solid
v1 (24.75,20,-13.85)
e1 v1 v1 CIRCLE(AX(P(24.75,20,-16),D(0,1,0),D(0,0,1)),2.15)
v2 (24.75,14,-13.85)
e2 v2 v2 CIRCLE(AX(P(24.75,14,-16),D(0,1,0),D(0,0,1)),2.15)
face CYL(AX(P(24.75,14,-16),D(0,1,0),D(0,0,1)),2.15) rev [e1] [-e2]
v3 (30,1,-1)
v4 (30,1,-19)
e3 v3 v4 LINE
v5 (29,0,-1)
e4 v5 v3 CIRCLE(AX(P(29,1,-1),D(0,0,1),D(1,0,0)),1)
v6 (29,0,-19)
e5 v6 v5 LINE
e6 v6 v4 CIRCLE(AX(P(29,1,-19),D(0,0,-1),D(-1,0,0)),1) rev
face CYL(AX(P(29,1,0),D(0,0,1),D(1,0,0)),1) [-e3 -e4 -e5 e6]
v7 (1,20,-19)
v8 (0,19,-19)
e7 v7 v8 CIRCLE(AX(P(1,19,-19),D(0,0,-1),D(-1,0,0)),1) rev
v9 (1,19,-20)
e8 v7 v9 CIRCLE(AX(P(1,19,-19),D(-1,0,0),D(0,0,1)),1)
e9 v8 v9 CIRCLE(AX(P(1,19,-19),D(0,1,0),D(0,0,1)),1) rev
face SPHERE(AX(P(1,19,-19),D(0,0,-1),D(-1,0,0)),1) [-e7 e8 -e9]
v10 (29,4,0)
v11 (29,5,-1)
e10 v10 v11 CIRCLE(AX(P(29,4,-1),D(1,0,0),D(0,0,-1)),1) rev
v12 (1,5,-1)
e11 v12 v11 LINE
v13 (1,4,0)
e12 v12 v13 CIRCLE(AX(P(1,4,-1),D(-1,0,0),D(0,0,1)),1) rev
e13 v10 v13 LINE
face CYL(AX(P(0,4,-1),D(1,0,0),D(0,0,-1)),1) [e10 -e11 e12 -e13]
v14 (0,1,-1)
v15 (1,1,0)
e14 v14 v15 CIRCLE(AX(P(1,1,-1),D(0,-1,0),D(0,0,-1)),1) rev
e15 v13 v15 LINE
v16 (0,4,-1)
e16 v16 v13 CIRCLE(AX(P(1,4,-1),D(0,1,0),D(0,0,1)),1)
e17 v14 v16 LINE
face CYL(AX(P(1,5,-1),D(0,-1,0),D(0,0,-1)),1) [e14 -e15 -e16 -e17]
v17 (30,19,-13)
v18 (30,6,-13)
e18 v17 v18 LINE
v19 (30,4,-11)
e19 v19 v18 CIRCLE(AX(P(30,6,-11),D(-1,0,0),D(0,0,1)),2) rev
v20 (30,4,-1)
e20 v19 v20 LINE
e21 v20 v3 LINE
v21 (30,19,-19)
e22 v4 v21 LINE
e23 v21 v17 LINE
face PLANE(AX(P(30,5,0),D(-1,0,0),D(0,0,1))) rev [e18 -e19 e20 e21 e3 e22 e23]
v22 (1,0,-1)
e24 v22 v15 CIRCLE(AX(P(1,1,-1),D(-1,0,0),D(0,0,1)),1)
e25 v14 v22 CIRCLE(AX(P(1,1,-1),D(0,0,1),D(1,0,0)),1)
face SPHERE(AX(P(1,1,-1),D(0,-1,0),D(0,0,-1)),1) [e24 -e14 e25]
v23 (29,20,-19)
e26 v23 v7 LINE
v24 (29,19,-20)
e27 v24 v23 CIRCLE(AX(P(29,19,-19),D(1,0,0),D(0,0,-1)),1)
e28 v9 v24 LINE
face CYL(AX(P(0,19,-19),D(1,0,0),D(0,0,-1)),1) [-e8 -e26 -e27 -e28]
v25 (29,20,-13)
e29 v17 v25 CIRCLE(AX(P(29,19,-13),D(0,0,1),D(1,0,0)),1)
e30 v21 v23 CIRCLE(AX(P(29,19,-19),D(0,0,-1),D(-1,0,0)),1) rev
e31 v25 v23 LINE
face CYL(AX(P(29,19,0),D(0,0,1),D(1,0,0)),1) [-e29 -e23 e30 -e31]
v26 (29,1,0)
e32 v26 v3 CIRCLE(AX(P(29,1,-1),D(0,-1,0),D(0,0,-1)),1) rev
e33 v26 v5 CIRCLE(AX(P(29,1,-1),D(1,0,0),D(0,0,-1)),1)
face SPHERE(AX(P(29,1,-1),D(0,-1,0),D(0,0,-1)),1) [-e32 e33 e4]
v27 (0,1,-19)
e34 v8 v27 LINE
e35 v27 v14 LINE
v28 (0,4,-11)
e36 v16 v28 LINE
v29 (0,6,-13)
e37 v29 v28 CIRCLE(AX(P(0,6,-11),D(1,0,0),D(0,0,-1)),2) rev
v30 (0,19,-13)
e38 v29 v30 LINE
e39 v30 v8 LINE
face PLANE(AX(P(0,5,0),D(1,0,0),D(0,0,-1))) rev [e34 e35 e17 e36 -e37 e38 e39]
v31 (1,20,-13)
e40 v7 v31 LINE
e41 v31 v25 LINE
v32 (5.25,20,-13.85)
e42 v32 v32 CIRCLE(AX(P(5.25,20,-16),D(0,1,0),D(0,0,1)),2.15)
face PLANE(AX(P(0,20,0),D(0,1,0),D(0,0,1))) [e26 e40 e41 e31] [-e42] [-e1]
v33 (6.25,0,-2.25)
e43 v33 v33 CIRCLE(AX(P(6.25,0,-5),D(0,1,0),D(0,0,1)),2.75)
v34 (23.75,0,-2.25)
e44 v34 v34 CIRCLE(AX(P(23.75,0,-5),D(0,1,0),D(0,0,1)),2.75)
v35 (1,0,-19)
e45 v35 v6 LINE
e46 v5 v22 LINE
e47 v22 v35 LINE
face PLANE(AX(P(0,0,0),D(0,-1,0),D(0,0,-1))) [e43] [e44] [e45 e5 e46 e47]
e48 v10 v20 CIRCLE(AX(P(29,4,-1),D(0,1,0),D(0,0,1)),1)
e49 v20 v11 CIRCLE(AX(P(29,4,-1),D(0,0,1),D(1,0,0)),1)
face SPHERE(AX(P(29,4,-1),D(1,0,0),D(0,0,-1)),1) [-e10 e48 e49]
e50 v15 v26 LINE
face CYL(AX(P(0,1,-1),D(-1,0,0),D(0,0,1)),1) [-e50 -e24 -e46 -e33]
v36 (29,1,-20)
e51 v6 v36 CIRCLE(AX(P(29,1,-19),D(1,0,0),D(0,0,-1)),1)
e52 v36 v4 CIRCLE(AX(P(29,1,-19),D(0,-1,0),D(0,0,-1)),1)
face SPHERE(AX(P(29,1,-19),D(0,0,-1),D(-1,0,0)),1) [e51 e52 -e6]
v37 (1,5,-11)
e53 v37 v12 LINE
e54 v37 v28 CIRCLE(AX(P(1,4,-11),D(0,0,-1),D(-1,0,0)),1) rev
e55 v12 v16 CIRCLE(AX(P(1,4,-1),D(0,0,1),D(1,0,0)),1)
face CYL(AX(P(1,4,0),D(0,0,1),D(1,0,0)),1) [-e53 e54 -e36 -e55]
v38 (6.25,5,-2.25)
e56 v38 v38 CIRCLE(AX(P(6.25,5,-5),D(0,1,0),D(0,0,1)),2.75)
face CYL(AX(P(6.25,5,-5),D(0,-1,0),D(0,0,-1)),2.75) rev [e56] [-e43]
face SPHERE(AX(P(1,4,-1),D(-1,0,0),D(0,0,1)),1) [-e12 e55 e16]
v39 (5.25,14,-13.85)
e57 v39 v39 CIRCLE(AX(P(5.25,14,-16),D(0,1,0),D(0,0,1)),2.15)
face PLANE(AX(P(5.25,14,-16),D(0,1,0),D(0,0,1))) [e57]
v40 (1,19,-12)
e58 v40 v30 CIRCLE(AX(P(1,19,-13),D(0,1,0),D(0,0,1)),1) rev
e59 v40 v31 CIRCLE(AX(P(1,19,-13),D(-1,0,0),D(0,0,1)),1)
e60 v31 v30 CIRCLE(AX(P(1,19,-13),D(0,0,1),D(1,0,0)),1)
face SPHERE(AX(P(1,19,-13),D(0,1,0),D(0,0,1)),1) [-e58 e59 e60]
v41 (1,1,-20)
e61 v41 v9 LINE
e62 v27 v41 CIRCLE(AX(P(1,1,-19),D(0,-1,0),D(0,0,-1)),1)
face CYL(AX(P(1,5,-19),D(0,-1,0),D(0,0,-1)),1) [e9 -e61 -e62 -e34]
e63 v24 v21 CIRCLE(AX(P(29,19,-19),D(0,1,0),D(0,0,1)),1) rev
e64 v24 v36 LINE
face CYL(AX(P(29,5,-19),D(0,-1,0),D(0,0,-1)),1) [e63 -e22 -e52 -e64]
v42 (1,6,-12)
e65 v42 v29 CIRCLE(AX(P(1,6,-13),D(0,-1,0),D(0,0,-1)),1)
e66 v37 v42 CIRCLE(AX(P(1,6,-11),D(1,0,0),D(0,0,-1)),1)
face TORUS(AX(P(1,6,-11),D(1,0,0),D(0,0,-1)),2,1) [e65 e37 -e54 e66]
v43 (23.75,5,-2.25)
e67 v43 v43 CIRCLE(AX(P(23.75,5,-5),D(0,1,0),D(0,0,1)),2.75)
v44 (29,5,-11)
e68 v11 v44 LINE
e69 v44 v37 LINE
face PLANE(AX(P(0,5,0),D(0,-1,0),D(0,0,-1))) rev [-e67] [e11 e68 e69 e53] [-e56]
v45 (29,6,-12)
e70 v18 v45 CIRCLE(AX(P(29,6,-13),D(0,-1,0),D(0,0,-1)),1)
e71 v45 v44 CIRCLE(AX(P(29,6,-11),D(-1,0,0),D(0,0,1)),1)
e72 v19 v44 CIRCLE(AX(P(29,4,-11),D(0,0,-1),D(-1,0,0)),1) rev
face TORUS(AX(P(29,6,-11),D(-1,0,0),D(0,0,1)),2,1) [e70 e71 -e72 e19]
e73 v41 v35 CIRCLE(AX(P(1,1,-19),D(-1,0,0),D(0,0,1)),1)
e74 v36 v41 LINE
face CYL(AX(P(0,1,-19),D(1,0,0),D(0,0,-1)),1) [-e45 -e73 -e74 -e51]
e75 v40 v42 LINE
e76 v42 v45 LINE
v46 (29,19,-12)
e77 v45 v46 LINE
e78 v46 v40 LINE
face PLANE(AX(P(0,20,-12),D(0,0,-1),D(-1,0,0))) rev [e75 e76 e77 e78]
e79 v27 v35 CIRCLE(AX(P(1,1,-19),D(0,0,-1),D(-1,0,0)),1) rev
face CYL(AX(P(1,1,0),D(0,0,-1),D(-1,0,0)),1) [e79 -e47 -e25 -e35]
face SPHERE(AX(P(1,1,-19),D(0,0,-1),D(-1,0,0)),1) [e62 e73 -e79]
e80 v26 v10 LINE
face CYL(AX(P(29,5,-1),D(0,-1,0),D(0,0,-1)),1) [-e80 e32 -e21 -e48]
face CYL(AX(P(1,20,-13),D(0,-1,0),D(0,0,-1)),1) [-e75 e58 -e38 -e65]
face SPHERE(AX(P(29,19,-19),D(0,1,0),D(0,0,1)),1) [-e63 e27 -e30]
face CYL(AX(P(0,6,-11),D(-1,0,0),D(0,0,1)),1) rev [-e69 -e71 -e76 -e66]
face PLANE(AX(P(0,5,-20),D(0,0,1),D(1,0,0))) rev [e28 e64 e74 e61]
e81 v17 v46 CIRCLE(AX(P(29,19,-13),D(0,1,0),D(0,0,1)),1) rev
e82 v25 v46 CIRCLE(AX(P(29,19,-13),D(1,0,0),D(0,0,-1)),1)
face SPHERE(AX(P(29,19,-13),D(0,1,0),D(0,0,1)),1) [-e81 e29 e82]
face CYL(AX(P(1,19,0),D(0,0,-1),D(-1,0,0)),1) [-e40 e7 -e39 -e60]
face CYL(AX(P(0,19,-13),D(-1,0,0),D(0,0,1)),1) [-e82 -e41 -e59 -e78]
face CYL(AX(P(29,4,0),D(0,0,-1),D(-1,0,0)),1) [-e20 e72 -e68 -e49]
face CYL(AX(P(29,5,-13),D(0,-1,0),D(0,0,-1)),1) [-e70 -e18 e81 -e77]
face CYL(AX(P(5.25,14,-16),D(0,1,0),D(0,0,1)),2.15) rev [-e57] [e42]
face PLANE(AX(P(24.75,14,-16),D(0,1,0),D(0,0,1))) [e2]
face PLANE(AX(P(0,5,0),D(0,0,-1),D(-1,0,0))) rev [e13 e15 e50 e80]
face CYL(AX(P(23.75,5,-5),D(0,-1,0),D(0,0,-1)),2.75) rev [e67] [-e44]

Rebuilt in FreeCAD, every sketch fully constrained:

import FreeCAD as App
import Part
import Sketcher

V = App.Vector


def edges_at(feature, points):
    """Names of the edges that pass closest to the given points."""
    edges = feature.Shape.Edges
    near = lambda p: min(range(len(edges)), key=lambda i: edges[i].distToShape(Part.Vertex(*p))[0])
    return sorted({f"Edge{near(p) + 1}" for p in points})


def add_polygon(sketch, points):
    """Adds a closed chain of lines whose ends are joined by coincident constraints."""
    first, n = sketch.GeometryCount, len(points)
    for a, b in zip(points, points[1:] + points[:1]):
        sketch.addGeometry(Part.LineSegment(App.Vector(*a, 0), App.Vector(*b, 0)), False)
    for i in range(n):
        sketch.addConstraint(Sketcher.Constraint("Coincident", first + i, 2, first + (i + 1) % n, 1))

doc = App.newDocument("Part")
body = doc.addObject("PartDesign::Body", "Body")

# Sketch on XZ plane
sketch1 = body.newObject("Sketcher::SketchObject", "Sketch")
sketch1.AttachmentSupport = (doc.getObject("XZ_Plane"), [""])
sketch1.MapMode = "FlatFace"
add_polygon(sketch1, [(0, -20), (0, 0), (30, 0), (30, -20)])  # lines 0-3
sketch1.addGeometry(Part.Circle(V(6.2, -5, 0), V(0, 0, 1), 2.8), False)  # 4
sketch1.addGeometry(Part.Circle(V(23.8, -5, 0), V(0, 0, 1), 2.8), False)  # 5
sketch1.addConstraint([
    Sketcher.Constraint("Vertical", 0),
    Sketcher.Constraint("Horizontal", 1),
    Sketcher.Constraint("Vertical", 2),
    Sketcher.Constraint("Horizontal", 3),
    Sketcher.Constraint("Coincident", 0, 2, -1, 1),
    Sketcher.Constraint("Equal", 4, 5),
    Sketcher.Constraint("Horizontal", 4, 3, 5, 3),
    Sketcher.Constraint("Diameter", 4, 5.5),
    Sketcher.Constraint("DistanceX", 1, 1, 1, 2, 30.0),
    Sketcher.Constraint("DistanceY", 0, 1, 0, 2, 20.0),
    Sketcher.Constraint("DistanceY", 4, 3, -1, 1, 5.0),
    Sketcher.Constraint("DistanceX", 4, 3, 5, 3, 17.5),
    Sketcher.Constraint("DistanceX", -1, 1, 4, 3, 6.25),
])
pad1 = body.newObject("PartDesign::Pad", "Pad")
pad1.Profile = sketch1
pad1.Length = 5
pad1.Reversed = True

# Sketch on XZ plane
sketch2 = body.newObject("Sketcher::SketchObject", "Sketch001")
sketch2.AttachmentSupport = (doc.getObject("XZ_Plane"), [""])
sketch2.MapMode = "FlatFace"
sketch2.AttachmentOffset = App.Placement(V(0, 0, -5), App.Rotation())
add_polygon(sketch2, [(0, -20), (0, -12), (30, -12), (30, -20)])  # lines 0-3
sketch2.addConstraint([
    Sketcher.Constraint("Vertical", 0),
    Sketcher.Constraint("Horizontal", 1),
    Sketcher.Constraint("Vertical", 2),
    Sketcher.Constraint("Horizontal", 3),
    Sketcher.Constraint("PointOnObject", 0, 2, -2),
    Sketcher.Constraint("DistanceX", 1, 1, 1, 2, 30.0),
    Sketcher.Constraint("DistanceY", 0, 1, 0, 2, 8.0),
    Sketcher.Constraint("DistanceY", 0, 2, -1, 1, 12.0),
])
pad2 = body.newObject("PartDesign::Pad", "Pad001")
pad2.Profile = sketch2
pad2.Length = 15
pad2.Reversed = True

# Sketch on XZ plane
sketch3 = body.newObject("Sketcher::SketchObject", "Sketch002")
sketch3.AttachmentSupport = (doc.getObject("XZ_Plane"), [""])
sketch3.MapMode = "FlatFace"
sketch3.AttachmentOffset = App.Placement(V(0, 0, -20), App.Rotation())
sketch3.addGeometry([
    Part.Circle(V(5.2, -16, 0), V(0, 0, 1), 2.1),
    Part.Circle(V(24.8, -16, 0), V(0, 0, 1), 2.1),
], False)
sketch3.addConstraint([
    Sketcher.Constraint("Equal", 0, 1),
    Sketcher.Constraint("Horizontal", 0, 3, 1, 3),
    Sketcher.Constraint("Diameter", 0, 4.3),
    Sketcher.Constraint("DistanceY", 0, 3, -1, 1, 16.0),
    Sketcher.Constraint("DistanceX", 0, 3, 1, 3, 19.5),
    Sketcher.Constraint("DistanceX", -1, 1, 0, 3, 5.25),
])
pocket1 = body.newObject("PartDesign::Pocket", "Pocket")
pocket1.Profile = sketch3
pocket1.Length = 6
pocket1.Reversed = True
doc.recompute()

fillet = body.newObject("PartDesign::Fillet", "Fillet")
fillet.Base = (pocket1, edges_at(pocket1, [
    (30, 5, -6),
    (0, 5, -6),
    (15, 5, -12),
    (0, 12.5, -12),
    (30, 12.5, -12),
    (0, 20, -16),
    (15, 20, -12),
    (30, 20, -16),
    (15, 20, -20),
    (15, 0, -20),
    (30, 0, -10),
    (15, 0, 0),
    (0, 0, -10),
    (0, 10, -20),
    (30, 10, -20),
    (30, 2.5, 0),
    (0, 2.5, 0),
    (15, 5, 0),
]))
fillet.Radius = 1

doc.recompute()
